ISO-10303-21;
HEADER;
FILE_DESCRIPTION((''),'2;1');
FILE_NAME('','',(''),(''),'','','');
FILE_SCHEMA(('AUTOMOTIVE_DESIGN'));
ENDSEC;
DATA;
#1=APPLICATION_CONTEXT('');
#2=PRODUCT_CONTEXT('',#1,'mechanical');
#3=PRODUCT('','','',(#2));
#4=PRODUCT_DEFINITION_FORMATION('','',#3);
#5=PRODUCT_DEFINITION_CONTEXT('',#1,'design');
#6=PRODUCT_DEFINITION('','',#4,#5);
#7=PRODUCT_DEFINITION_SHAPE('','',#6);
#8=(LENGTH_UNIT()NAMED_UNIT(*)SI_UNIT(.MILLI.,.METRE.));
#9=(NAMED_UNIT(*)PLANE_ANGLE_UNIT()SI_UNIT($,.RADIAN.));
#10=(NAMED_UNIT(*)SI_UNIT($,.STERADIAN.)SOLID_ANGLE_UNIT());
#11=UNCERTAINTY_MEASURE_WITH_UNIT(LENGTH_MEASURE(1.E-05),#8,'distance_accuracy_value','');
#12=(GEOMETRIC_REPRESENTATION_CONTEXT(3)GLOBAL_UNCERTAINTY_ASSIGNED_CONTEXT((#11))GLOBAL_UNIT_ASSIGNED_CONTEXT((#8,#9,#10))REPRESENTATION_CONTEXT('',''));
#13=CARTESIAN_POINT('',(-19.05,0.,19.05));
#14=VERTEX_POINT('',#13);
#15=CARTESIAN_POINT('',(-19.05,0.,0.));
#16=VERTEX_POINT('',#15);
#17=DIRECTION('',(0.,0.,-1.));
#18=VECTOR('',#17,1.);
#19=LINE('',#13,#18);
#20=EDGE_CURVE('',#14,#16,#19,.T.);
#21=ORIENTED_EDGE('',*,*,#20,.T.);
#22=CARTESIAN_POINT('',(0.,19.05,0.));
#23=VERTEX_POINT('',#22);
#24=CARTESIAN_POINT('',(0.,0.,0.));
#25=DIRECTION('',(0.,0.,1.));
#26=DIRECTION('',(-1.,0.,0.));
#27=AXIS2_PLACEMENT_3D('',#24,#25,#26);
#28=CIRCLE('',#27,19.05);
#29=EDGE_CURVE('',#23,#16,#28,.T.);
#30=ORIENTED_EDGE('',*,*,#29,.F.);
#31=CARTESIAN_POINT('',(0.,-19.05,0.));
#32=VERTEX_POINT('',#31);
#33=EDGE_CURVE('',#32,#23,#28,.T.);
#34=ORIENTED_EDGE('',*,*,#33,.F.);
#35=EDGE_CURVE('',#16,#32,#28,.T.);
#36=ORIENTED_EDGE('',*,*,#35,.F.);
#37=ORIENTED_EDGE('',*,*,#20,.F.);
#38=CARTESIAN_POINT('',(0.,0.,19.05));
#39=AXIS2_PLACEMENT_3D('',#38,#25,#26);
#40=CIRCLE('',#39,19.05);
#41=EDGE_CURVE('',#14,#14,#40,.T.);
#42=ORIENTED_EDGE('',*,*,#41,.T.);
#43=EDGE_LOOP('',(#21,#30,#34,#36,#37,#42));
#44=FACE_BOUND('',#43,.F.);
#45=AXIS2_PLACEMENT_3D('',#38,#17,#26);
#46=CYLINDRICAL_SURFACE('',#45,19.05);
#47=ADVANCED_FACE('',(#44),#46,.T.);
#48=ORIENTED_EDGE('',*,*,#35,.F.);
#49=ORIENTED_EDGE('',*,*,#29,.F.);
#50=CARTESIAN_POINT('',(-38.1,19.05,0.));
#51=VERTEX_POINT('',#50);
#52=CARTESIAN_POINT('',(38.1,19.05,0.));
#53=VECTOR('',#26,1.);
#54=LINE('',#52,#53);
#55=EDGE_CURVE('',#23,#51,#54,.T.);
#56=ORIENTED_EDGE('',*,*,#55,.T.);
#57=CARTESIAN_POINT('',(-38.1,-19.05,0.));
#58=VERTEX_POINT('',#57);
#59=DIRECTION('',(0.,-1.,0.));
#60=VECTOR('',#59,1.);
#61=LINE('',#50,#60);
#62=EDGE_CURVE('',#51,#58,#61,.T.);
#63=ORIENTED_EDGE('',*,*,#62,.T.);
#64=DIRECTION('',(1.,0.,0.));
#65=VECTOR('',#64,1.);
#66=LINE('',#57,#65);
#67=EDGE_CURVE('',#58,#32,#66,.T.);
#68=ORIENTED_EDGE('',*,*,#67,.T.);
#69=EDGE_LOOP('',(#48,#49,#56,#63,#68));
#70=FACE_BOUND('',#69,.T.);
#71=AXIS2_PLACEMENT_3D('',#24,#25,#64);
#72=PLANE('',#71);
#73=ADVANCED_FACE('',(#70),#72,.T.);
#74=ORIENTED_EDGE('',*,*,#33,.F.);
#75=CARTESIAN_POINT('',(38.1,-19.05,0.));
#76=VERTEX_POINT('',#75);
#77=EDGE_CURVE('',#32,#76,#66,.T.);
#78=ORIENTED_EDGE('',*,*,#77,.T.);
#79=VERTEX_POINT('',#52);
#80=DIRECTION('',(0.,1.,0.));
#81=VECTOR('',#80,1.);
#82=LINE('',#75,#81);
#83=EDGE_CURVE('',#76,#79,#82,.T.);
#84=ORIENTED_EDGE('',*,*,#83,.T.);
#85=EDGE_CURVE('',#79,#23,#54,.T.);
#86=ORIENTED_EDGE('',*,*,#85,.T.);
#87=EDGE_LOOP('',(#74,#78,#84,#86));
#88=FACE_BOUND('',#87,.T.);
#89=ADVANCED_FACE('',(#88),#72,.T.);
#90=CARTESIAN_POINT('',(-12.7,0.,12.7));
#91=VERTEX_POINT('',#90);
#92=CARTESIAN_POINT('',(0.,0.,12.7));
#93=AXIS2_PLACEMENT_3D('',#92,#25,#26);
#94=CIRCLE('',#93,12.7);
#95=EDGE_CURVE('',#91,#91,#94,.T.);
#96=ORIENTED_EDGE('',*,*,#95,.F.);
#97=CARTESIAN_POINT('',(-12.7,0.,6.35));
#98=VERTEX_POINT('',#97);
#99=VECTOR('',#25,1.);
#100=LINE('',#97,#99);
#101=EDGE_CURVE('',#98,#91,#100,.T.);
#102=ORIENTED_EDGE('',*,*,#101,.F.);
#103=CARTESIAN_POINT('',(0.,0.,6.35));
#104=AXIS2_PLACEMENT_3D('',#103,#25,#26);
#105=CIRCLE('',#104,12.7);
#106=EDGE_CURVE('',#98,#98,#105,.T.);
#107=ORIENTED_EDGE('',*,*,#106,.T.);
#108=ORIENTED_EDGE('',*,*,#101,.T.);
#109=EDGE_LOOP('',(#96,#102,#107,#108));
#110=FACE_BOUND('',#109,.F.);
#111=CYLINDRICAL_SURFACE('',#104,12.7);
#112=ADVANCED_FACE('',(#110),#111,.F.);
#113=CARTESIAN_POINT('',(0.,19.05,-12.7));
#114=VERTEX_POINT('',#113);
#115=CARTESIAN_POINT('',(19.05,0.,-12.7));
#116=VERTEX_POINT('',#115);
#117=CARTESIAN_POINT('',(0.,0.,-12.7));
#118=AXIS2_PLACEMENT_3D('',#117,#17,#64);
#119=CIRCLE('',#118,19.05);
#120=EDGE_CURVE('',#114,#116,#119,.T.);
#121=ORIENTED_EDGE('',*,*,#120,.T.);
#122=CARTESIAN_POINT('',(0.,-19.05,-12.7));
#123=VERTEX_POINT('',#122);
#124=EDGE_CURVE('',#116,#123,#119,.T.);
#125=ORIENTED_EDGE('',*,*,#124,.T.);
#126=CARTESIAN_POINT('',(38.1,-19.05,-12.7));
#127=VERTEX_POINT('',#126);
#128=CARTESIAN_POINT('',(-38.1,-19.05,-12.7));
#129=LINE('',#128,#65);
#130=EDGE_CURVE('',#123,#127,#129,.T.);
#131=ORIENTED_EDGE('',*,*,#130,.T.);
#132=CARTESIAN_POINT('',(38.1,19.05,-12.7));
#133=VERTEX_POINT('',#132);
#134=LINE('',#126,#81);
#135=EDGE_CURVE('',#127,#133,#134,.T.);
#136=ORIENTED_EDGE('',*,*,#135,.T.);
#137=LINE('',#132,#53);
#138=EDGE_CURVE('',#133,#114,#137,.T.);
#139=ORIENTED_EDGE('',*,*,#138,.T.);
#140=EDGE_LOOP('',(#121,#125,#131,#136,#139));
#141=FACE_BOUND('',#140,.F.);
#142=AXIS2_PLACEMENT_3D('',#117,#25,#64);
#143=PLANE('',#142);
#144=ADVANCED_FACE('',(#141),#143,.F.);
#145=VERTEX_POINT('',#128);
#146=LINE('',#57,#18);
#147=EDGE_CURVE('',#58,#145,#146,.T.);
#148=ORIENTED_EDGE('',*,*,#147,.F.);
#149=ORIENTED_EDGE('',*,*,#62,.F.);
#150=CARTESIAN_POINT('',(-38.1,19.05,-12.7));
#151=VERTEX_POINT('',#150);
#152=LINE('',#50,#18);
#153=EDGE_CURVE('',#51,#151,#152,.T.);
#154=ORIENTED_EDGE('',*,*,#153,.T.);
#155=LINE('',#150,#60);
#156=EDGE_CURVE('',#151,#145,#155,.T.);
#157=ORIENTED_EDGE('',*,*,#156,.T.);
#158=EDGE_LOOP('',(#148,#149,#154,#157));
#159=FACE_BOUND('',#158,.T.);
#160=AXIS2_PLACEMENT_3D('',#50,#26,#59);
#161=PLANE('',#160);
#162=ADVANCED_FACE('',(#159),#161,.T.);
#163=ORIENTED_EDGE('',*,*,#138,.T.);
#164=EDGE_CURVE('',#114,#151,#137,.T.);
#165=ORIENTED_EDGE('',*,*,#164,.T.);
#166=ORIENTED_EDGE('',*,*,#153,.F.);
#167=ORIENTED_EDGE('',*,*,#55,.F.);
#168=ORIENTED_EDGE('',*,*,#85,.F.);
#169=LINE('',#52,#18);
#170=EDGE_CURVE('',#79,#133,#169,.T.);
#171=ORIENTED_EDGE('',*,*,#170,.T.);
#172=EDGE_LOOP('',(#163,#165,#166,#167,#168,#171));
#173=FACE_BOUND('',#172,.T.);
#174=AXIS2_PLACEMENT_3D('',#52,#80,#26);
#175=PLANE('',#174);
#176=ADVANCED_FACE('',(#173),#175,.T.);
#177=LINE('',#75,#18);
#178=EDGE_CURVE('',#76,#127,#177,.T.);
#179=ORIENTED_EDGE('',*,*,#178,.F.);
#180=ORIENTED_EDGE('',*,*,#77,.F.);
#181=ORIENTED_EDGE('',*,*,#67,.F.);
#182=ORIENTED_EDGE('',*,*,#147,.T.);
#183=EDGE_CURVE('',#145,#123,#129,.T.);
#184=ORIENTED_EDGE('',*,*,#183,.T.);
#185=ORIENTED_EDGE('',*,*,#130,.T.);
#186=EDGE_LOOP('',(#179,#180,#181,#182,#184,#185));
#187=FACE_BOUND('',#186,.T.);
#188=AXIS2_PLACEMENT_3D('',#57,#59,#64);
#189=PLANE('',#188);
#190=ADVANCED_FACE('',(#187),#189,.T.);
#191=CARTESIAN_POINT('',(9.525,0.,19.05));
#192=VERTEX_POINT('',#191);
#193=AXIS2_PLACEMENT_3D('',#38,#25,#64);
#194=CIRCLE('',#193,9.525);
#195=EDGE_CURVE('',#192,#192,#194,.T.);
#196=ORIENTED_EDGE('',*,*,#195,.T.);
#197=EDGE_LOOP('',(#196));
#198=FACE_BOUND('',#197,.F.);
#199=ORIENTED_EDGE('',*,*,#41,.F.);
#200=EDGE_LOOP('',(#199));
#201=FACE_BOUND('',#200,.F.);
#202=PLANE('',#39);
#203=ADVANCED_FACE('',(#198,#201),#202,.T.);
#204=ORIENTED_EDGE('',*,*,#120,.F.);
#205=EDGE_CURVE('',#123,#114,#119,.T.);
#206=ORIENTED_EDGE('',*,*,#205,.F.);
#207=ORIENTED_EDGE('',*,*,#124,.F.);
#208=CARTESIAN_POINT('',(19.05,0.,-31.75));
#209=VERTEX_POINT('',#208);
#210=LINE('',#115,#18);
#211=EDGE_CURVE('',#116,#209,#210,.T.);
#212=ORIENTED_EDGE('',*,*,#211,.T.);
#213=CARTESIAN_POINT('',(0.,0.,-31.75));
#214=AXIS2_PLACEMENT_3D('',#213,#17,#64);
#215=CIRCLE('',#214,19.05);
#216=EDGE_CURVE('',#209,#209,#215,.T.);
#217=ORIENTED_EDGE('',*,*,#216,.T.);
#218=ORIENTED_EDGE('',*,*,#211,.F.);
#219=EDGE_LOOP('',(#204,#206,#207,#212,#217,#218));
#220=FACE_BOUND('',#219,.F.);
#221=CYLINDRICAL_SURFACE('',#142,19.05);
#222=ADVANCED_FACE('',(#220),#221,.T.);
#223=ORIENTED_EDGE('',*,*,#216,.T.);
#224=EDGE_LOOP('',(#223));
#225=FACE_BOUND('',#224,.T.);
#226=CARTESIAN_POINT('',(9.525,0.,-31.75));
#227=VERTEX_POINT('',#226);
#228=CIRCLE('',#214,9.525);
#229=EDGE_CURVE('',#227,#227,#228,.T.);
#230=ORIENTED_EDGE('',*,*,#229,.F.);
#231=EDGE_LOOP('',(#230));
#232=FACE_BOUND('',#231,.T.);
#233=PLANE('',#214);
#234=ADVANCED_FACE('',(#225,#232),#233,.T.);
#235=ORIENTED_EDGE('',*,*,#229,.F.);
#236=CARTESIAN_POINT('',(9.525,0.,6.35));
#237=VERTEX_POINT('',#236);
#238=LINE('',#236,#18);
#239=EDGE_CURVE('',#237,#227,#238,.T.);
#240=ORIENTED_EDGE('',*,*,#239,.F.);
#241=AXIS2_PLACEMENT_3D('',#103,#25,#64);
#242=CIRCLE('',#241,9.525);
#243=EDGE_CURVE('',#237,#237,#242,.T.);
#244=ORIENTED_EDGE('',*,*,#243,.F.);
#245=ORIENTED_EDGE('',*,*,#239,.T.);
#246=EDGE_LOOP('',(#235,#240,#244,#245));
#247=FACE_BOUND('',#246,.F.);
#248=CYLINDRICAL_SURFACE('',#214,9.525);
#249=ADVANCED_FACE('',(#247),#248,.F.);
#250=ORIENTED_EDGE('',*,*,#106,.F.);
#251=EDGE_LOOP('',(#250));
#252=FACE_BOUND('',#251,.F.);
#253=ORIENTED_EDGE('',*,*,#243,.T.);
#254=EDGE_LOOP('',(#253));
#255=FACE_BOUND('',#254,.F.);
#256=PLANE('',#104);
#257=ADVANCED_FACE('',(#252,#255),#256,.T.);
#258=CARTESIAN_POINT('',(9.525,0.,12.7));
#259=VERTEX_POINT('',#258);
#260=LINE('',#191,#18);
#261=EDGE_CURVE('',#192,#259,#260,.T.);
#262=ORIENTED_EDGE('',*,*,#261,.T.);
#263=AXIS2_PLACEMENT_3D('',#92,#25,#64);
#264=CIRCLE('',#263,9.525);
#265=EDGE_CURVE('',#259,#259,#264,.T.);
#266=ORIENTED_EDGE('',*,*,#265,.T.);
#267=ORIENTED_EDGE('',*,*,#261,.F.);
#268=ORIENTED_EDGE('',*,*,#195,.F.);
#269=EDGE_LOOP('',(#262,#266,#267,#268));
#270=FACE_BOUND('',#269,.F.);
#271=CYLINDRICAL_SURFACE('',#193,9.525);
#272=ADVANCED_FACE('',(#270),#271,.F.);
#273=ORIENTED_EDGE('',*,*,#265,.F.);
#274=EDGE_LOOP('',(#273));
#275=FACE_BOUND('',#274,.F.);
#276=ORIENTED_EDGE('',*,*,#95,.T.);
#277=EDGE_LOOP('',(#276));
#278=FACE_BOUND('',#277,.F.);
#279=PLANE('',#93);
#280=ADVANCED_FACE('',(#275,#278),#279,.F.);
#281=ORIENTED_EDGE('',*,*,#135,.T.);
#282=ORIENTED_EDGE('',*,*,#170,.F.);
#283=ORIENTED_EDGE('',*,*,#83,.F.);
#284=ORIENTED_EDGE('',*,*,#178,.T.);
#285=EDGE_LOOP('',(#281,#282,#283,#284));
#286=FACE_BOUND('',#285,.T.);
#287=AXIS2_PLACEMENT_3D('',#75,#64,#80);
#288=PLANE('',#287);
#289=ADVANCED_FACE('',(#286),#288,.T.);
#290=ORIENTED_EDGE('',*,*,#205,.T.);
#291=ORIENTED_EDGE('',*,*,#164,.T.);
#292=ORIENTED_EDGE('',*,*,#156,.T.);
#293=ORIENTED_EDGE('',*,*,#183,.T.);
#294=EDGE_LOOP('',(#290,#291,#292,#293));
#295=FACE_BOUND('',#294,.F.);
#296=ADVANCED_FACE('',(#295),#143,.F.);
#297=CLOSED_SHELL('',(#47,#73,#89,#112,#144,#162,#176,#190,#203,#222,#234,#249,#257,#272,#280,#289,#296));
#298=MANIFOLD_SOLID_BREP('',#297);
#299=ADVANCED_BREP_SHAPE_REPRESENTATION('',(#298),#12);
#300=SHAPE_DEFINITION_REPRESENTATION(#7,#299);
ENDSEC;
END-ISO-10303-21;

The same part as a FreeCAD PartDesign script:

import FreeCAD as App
import Part
import Sketcher

V = App.Vector
Q = App.Units.Quantity


def add_polygon(sketch, points):
    """Adds a closed chain of lines whose ends are joined by coincident constraints."""
    first, n = sketch.GeometryCount, len(points)
    for a, b in zip(points, points[1:] + points[:1]):
        sketch.addGeometry(Part.LineSegment(App.Vector(*a, 0), App.Vector(*b, 0)), False)
    for i in range(n):
        sketch.addConstraint(Sketcher.Constraint("Coincident", first + i, 2, first + (i + 1) % n, 1))

doc = App.newDocument("Part")
body = doc.addObject("PartDesign::Body", "Body")

# Sketch on XY plane
sketch1 = doc.addObject("Sketcher::SketchObject", "Sketch")
body.addObject(sketch1)
sketch1.AttachmentSupport = (doc.XY_Plane, [""])
sketch1.MapMode = "FlatFace"
add_polygon(sketch1, [(38, 19), (-38, 19), (-38, -19), (38, -19)])  # lines 0-3
sketch1.addConstraint([
    Sketcher.Constraint("Horizontal", 0),
    Sketcher.Constraint("Vertical", 1),
    Sketcher.Constraint("Horizontal", 2),
    Sketcher.Constraint("Vertical", 3),
    Sketcher.Constraint("Symmetric", 0, 2, 2, 2, -1, 1),
    Sketcher.Constraint("DistanceX", 0, 2, 0, 1, Q("3 in")),
    Sketcher.Constraint("DistanceY", 1, 2, 1, 1, Q("1.5 in")),
])
pad1 = doc.addObject("PartDesign::Pad", "Pad")
body.addObject(pad1)
pad1.Profile = sketch1
pad1.Length = Q("0.5 in")
pad1.Reversed = True

# Sketch on XZ plane
sketch2 = doc.addObject("Sketcher::SketchObject", "Sketch001")
body.addObject(sketch2)
sketch2.AttachmentSupport = (doc.XZ_Plane, [""])
sketch2.MapMode = "FlatFace"
add_polygon(sketch2, [(-19, 0), (0, 0), (0, 6), (-13, 6), (-13, 13), (0, 13), (0, 19), (-19, 19)])  # lines 0-7
sketch2.addConstraint([
    Sketcher.Constraint("Horizontal", 0),
    Sketcher.Constraint("Vertical", 1),
    Sketcher.Constraint("Horizontal", 2),
    Sketcher.Constraint("Vertical", 3),
    Sketcher.Constraint("Horizontal", 4),
    Sketcher.Constraint("Vertical", 5),
    Sketcher.Constraint("Horizontal", 6),
    Sketcher.Constraint("Vertical", 7),
    Sketcher.Constraint("Coincident", 0, 2, -1, 1),
    Sketcher.Constraint("PointOnObject", 4, 2, -2),
    Sketcher.Constraint("Equal", 1, 3),
    Sketcher.Constraint("Equal", 3, 5),
    Sketcher.Constraint("Equal", 6, 7),
    Sketcher.Constraint("DistanceX", 2, 2, 2, 1, Q("0.5 in")),
    Sketcher.Constraint("DistanceX", 0, 1, 0, 2, Q("0.75 in")),
])
revolution = doc.addObject("PartDesign::Revolution", "Revolution")
body.addObject(revolution)
revolution.Profile = sketch2
revolution.ReferenceAxis = (sketch2, ["V_Axis"])
revolution.Angle = 360

# Sketch on XY plane
sketch3 = doc.addObject("Sketcher::SketchObject", "Sketch002")
body.addObject(sketch3)
sketch3.AttachmentSupport = (doc.XY_Plane, [""])
sketch3.MapMode = "FlatFace"
sketch3.AttachmentOffset = App.Placement(V(0, 0, 0.75 * 25.4), App.Rotation())
sketch3.addGeometry(Part.Circle(V(0, 0, 0), V(0, 0, 1), 10), False)
sketch3.addConstraint([
    Sketcher.Constraint("Coincident", 0, 3, -1, 1),
    Sketcher.Constraint("Diameter", 0, Q("0.75 in")),
])
pocket1 = doc.addObject("PartDesign::Pocket", "Pocket")
body.addObject(pocket1)
pocket1.Profile = sketch3
pocket1.Type = "ThroughAll"

# Sketch on XY plane
sketch4 = doc.addObject("Sketcher::SketchObject", "Sketch003")
body.addObject(sketch4)
sketch4.AttachmentSupport = (doc.XY_Plane, [""])
sketch4.MapMode = "FlatFace"
sketch4.AttachmentOffset = App.Placement(V(0, 0, -0.5 * 25.4), App.Rotation())
sketch4.addGeometry(Part.Circle(V(0, 0, 0), V(0, 0, 1), 19), False)
sketch4.addConstraint([
    Sketcher.Constraint("Coincident", 0, 3, -1, 1),
    Sketcher.Constraint("Diameter", 0, Q("1.5 in")),
])
pad2 = doc.addObject("PartDesign::Pad", "Pad001")
body.addObject(pad2)
pad2.Profile = sketch4
pad2.Length = Q("0.75 in")
pad2.Reversed = True

# Sketch on XY plane
sketch5 = doc.addObject("Sketcher::SketchObject", "Sketch004")
body.addObject(sketch5)
sketch5.AttachmentSupport = (doc.XY_Plane, [""])
sketch5.MapMode = "FlatFace"
sketch5.AttachmentOffset = App.Placement(V(0, 0, -1.25 * 25.4), App.Rotation())
sketch5.addGeometry(Part.Circle(V(0, 0, 0), V(0, 0, 1), 10), False)
sketch5.addConstraint([
    Sketcher.Constraint("Coincident", 0, 3, -1, 1),
    Sketcher.Constraint("Diameter", 0, Q("0.75 in")),
])
pocket2 = doc.addObject("PartDesign::Pocket", "Pocket001")
body.addObject(pocket2)
pocket2.Profile = sketch5
pocket2.Type = "ThroughAll"
pocket2.Reversed = True

doc.recompute()
